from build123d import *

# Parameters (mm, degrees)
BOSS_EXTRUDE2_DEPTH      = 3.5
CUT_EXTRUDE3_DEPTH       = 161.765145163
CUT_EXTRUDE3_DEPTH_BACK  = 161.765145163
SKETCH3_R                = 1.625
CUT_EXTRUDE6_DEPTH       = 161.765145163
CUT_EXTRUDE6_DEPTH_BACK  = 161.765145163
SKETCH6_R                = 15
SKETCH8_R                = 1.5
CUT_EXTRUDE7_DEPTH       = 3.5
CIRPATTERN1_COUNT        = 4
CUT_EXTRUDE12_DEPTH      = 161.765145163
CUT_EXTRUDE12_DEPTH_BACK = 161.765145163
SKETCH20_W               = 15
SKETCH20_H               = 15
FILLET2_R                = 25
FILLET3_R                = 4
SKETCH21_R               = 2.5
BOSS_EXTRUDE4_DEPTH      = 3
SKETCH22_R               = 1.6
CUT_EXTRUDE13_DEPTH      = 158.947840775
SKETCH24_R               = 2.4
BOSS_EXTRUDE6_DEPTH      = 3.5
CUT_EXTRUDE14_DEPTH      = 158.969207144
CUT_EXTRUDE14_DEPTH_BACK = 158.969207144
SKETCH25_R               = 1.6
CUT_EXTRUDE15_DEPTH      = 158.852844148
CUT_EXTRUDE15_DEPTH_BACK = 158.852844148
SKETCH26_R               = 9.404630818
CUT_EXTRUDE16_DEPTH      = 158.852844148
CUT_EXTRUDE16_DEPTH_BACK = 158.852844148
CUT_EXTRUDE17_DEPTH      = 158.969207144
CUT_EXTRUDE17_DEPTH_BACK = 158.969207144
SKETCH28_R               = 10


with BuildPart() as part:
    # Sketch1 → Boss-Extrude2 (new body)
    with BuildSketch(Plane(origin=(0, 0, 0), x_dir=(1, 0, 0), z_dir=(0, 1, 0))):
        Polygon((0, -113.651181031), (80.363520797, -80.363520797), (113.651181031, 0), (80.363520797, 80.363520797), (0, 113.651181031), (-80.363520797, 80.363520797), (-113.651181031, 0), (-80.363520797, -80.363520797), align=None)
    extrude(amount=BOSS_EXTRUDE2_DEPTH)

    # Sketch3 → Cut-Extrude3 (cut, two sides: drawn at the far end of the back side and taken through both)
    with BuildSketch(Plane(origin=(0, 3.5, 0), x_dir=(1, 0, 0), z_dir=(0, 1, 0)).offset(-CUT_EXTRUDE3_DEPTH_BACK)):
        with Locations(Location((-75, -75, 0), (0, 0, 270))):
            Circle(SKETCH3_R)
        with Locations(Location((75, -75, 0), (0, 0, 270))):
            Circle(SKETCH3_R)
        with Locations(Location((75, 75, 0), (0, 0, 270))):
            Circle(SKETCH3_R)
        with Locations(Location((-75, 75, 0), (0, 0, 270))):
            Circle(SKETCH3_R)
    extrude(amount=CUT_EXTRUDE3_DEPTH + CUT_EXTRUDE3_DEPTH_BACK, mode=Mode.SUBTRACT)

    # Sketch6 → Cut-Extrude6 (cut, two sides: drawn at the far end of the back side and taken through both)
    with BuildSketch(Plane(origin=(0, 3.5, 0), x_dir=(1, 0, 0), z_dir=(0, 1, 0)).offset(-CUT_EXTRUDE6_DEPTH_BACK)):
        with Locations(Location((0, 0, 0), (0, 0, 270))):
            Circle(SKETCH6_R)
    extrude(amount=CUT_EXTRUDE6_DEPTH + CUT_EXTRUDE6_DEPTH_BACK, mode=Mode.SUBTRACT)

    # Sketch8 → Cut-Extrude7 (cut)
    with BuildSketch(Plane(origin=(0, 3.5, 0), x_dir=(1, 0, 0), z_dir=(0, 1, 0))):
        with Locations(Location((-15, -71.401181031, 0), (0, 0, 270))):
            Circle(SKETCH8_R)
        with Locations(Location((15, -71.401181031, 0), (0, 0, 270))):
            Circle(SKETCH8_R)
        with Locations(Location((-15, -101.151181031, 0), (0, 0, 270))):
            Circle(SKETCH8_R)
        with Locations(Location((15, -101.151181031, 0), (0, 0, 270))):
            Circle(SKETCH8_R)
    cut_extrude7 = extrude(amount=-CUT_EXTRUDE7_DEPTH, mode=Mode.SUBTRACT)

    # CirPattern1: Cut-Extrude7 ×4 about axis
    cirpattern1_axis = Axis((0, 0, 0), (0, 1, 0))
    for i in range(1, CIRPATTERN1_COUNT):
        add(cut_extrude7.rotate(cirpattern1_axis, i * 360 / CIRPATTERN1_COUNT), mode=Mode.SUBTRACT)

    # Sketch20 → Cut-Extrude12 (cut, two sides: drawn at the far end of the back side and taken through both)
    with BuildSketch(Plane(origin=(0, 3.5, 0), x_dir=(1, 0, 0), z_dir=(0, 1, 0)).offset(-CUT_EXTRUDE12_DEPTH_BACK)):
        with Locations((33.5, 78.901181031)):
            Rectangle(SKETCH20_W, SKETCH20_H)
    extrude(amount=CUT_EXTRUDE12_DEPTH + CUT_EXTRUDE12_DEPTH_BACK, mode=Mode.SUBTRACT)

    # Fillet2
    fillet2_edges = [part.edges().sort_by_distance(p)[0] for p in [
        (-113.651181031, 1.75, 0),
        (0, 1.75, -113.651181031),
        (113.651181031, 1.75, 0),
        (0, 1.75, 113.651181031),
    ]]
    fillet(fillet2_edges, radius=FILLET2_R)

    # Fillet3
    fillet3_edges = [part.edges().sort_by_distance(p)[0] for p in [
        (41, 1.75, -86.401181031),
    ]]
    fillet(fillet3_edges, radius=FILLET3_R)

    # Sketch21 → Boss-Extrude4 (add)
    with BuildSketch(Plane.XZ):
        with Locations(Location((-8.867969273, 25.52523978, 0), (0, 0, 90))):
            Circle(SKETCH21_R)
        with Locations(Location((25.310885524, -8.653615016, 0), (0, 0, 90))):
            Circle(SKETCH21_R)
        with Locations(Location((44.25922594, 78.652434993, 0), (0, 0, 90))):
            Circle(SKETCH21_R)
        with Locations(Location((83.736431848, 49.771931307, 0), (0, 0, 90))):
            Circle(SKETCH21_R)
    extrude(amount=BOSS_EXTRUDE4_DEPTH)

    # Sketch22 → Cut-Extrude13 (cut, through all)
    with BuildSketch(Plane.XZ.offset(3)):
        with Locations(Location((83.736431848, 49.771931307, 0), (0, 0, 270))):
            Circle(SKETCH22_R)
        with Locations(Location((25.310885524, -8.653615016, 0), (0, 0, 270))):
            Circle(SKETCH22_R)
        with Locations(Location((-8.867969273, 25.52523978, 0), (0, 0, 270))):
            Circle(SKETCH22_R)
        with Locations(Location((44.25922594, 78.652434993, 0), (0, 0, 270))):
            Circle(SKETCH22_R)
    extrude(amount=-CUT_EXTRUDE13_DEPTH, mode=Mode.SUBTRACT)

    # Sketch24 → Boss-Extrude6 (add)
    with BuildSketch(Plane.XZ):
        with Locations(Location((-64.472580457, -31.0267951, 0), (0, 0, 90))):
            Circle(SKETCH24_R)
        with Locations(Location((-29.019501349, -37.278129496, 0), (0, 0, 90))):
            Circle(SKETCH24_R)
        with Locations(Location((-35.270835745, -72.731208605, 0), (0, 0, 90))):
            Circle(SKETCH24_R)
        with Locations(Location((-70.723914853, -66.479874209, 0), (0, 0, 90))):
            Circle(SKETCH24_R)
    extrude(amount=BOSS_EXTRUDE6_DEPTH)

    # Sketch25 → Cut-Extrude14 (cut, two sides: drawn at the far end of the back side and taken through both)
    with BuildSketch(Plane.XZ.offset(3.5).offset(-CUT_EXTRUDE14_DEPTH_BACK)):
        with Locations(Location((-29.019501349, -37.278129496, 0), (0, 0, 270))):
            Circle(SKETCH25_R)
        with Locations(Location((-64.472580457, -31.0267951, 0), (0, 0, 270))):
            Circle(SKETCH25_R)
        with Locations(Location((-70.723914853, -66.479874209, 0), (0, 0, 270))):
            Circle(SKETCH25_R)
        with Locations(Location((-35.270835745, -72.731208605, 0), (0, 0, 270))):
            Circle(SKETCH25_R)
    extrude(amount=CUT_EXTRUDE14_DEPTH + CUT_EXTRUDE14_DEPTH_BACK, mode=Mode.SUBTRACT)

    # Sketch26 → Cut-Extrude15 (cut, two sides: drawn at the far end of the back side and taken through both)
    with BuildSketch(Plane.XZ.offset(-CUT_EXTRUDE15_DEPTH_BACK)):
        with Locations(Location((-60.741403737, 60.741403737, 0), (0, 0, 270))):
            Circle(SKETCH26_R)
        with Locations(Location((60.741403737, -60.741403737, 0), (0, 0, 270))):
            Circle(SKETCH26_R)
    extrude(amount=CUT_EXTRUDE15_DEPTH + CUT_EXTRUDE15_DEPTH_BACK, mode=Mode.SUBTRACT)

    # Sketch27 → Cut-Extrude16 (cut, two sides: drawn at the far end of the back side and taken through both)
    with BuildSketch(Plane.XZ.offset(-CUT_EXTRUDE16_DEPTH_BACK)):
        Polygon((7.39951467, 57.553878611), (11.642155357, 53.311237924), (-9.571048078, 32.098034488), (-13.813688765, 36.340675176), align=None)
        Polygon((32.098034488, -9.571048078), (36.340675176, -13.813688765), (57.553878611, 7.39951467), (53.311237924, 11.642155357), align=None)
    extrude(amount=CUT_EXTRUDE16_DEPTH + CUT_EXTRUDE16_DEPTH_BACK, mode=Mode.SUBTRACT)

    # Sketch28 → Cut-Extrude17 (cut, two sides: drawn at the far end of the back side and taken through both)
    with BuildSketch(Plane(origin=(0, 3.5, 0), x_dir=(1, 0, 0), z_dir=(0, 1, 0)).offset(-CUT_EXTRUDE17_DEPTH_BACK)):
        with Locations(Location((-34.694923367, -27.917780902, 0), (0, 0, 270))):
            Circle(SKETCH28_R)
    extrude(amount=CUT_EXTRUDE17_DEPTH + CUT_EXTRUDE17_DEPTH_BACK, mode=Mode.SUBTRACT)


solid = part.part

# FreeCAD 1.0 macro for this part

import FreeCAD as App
import Part
import Sketcher
Q = App.Units.Quantity


def edges_at(feature, points):
    """Names of the edges that pass closest to the given points."""
    edges = feature.Shape.Edges
    near = lambda p: min(range(len(edges)), key=lambda i: edges[i].distToShape(Part.Vertex(*p))[0])
    return sorted({f"Edge{near(p) + 1}" for p in points})

doc = App.newDocument("Part")
body = doc.addObject("PartDesign::Body", "Body")

sketch1 = body.newObject("Sketcher::SketchObject", "Sketch")
sketch1.AttachmentSupport = (doc.getObject("XZ_Plane"), [""])
sketch1.MapMode = "FlatFace"
sketch1.addGeometry([
    Part.LineSegment(App.Vector(0, 113.651181, 0), App.Vector(80.363521, 80.363521, 0)),
    Part.LineSegment(App.Vector(80.363521, 80.363521, 0), App.Vector(113.651181, 0, 0)),
    Part.LineSegment(App.Vector(113.651181, 0, 0), App.Vector(80.363521, -80.363521, 0)),
    Part.LineSegment(App.Vector(80.363521, -80.363521, 0), App.Vector(0, -113.651181, 0)),
    Part.LineSegment(App.Vector(0, -113.651181, 0), App.Vector(-80.363521, -80.363521, 0)),
    Part.LineSegment(App.Vector(-80.363521, -80.363521, 0), App.Vector(-113.651181, 0, 0)),
    Part.LineSegment(App.Vector(-113.651181, 0, 0), App.Vector(-80.363521, 80.363521, 0)),
    Part.LineSegment(App.Vector(-80.363521, 80.363521, 0), App.Vector(0, 113.651181, 0)),
], False)
sketch1.addConstraint([
    Sketcher.Constraint("Coincident", 0, 2, 1, 1),
    Sketcher.Constraint("Coincident", 1, 2, 2, 1),
    Sketcher.Constraint("Coincident", 2, 2, 3, 1),
    Sketcher.Constraint("Coincident", 3, 2, 4, 1),
    Sketcher.Constraint("Coincident", 4, 2, 5, 1),
    Sketcher.Constraint("Coincident", 5, 2, 6, 1),
    Sketcher.Constraint("Coincident", 6, 2, 7, 1),
    Sketcher.Constraint("Coincident", 7, 2, 0, 1),
    Sketcher.Constraint("Symmetric", 0, 2, 4, 2, -1, 1),
    Sketcher.Constraint("Symmetric", 1, 2, 5, 2, -1, 1),
    Sketcher.Constraint("Symmetric", 2, 2, 6, 2, -1, 1),
    Sketcher.Constraint("Symmetric", 3, 2, 7, 2, -1, 1),
    Sketcher.Constraint("Symmetric", 2, 2, 4, 2, -2),
    Sketcher.Constraint("PointOnObject", 1, 2, -1),
    Sketcher.Constraint("PointOnObject", 3, 2, -2),
    Sketcher.Constraint("Perpendicular", 0, 2),
    Sketcher.Constraint("Equal", 0, 1),
    Sketcher.Constraint("Angle", 0, Q("-22.5 deg")),
    Sketcher.Constraint("DistanceY", 3, 2, 0, 2, Q("194.014702 mm")),
])
pad1 = body.newObject("PartDesign::Pad", "Pad")
pad1.Profile = sketch1
pad1.Length = 3.5
pad1.Reversed = True

sketch2 = body.newObject("Sketcher::SketchObject", "Sketch001")
sketch2.AttachmentSupport = (doc.getObject("XZ_Plane"), [""])
sketch2.MapMode = "FlatFace"
sketch2.AttachmentOffset = App.Placement(App.Vector(0, 0, -3.5), App.Rotation())
sketch2.addGeometry([
    Part.Circle(App.Vector(-75, 75, 0), App.Vector(0, 0, 1), 1.625),
    Part.Circle(App.Vector(75, 75, 0), App.Vector(0, 0, 1), 1.625),
    Part.Circle(App.Vector(75, -75, 0), App.Vector(0, 0, 1), 1.625),
    Part.Circle(App.Vector(-75, -75, 0), App.Vector(0, 0, 1), 1.625),
], False)
sketch2.addConstraint([
    Sketcher.Constraint("Equal", 0, 1),
    Sketcher.Constraint("Equal", 1, 2),
    Sketcher.Constraint("Equal", 2, 3),
    Sketcher.Constraint("Symmetric", 0, 3, 2, 3, -1, 1),
    Sketcher.Constraint("Symmetric", 1, 3, 3, 3, -1, 1),
    Sketcher.Constraint("Symmetric", 0, 3, 1, 3, -2),
    Sketcher.Constraint("Diameter", 0, Q("3.25 mm")),
    Sketcher.Constraint("DistanceX", 0, 3, -1, 1, Q("75 mm")),
    Sketcher.Constraint("DistanceY", -1, 1, 0, 3, Q("75 mm")),
])
pocket1 = body.newObject("PartDesign::Pocket", "Pocket")
pocket1.Profile = sketch2
pocket1.Type = "ThroughAll"
pocket1.Midplane = True

sketch3 = body.newObject("Sketcher::SketchObject", "Sketch002")
sketch3.AttachmentSupport = (doc.getObject("XZ_Plane"), [""])
sketch3.MapMode = "FlatFace"
sketch3.AttachmentOffset = App.Placement(App.Vector(0, 0, -3.5), App.Rotation())
sketch3.addGeometry(Part.Circle(App.Vector(0, 0, 0), App.Vector(0, 0, 1), 15), False)
sketch3.addConstraint([
    Sketcher.Constraint("Coincident", 0, 3, -1, 1),
    Sketcher.Constraint("Diameter", 0, Q("30 mm")),
])
pocket2 = body.newObject("PartDesign::Pocket", "Pocket001")
pocket2.Profile = sketch3
pocket2.Type = "ThroughAll"
pocket2.Midplane = True

sketch4 = body.newObject("Sketcher::SketchObject", "Sketch003")
sketch4.AttachmentSupport = (doc.getObject("XZ_Plane"), [""])
sketch4.MapMode = "FlatFace"
sketch4.AttachmentOffset = App.Placement(App.Vector(0, 0, -3.5), App.Rotation())
sketch4.addGeometry([
    Part.Circle(App.Vector(-15, 71.401181, 0), App.Vector(0, 0, 1), 1.5),
    Part.Circle(App.Vector(15, 71.401181, 0), App.Vector(0, 0, 1), 1.5),
    Part.Circle(App.Vector(-15, 101.151181, 0), App.Vector(0, 0, 1), 1.5),
    Part.Circle(App.Vector(15, 101.151181, 0), App.Vector(0, 0, 1), 1.5),
], False)
sketch4.addConstraint([
    Sketcher.Constraint("Equal", 0, 1),
    Sketcher.Constraint("Equal", 1, 2),
    Sketcher.Constraint("Equal", 2, 3),
    Sketcher.Constraint("Symmetric", 0, 3, 1, 3, -2),
    Sketcher.Constraint("Symmetric", 2, 3, 3, 3, -2),
    Sketcher.Constraint("Vertical", 0, 3, 2, 3),
    Sketcher.Constraint("Diameter", 0, Q("3 mm")),
    Sketcher.Constraint("DistanceX", 0, 3, -1, 1, Q("15 mm")),
    Sketcher.Constraint("DistanceY", 0, 3, 2, 3, Q("29.75 mm")),
    Sketcher.Constraint("DistanceY", -1, 1, 0, 3, Q("71.401181 mm")),
])
pocket3 = body.newObject("PartDesign::Pocket", "Pocket002")
pocket3.Profile = sketch4
pocket3.Length = 3.5
pocket3.Reversed = True
doc.recompute()

polarpattern = body.newObject("PartDesign::PolarPattern", "PolarPattern")
polarpattern.Originals = [pocket3]
polarpattern.Axis = (doc.getObject("Y_Axis"), [""])
polarpattern.Angle = 360
polarpattern.Occurrences = 4
body.Tip = polarpattern

sketch5 = body.newObject("Sketcher::SketchObject", "Sketch004")
sketch5.AttachmentSupport = (doc.getObject("XZ_Plane"), [""])
sketch5.MapMode = "FlatFace"
sketch5.AttachmentOffset = App.Placement(App.Vector(0, 0, -3.5), App.Rotation())
sketch5.addGeometry([
    Part.LineSegment(App.Vector(26, -86.401181, 0), App.Vector(26, -71.401181, 0)),
    Part.LineSegment(App.Vector(26, -71.401181, 0), App.Vector(41, -71.401181, 0)),
    Part.LineSegment(App.Vector(41, -71.401181, 0), App.Vector(41, -86.401181, 0)),
    Part.LineSegment(App.Vector(41, -86.401181, 0), App.Vector(26, -86.401181, 0)),
], False)
sketch5.addConstraint([
    Sketcher.Constraint("Coincident", 0, 2, 1, 1),
    Sketcher.Constraint("Coincident", 1, 2, 2, 1),
    Sketcher.Constraint("Coincident", 2, 2, 3, 1),
    Sketcher.Constraint("Coincident", 3, 2, 0, 1),
    Sketcher.Constraint("Vertical", 0),
    Sketcher.Constraint("Horizontal", 1),
    Sketcher.Constraint("Vertical", 2),
    Sketcher.Constraint("Horizontal", 3),
    Sketcher.Constraint("Equal", 3, 0),
    Sketcher.Constraint("DistanceX", 1, 1, 1, 2, Q("15 mm")),
    Sketcher.Constraint("DistanceX", -1, 1, 0, 2, Q("26 mm")),
    Sketcher.Constraint("DistanceY", 0, 2, -1, 1, Q("71.401181 mm")),
])
pocket4 = body.newObject("PartDesign::Pocket", "Pocket003")
pocket4.Profile = sketch5
pocket4.Type = "ThroughAll"
pocket4.Midplane = True
doc.recompute()

fillet = body.newObject("PartDesign::Fillet", "Fillet")
fillet.Base = (pocket4, edges_at(pocket4, [
    (-113.651, 1.75, 0),
    (0, 1.75, -113.651),
    (113.651, 1.75, 0),
    (0, 1.75, 113.651),
]))
fillet.Radius = 25
doc.recompute()

fillet2 = body.newObject("PartDesign::Fillet", "Fillet001")
fillet2.Base = (fillet, edges_at(fillet, [(41, 1.75, -86.401)]))
fillet2.Radius = 4

sketch6 = body.newObject("Sketcher::SketchObject", "Sketch005")
sketch6.AttachmentSupport = (doc.getObject("XZ_Plane"), [""])
sketch6.MapMode = "FlatFace"
sketch6.addGeometry([
    Part.Circle(App.Vector(-8.867969, 25.52524, 0), App.Vector(0, 0, 1), 2.5),
    Part.Circle(App.Vector(25.310886, -8.653615, 0), App.Vector(0, 0, 1), 2.5),
    Part.Circle(App.Vector(44.259226, 78.652435, 0), App.Vector(0, 0, 1), 2.5),
    Part.Circle(App.Vector(83.736432, 49.771931, 0), App.Vector(0, 0, 1), 2.5),
], False)
sketch6.addConstraint([
    Sketcher.Constraint("Equal", 0, 1),
    Sketcher.Constraint("Equal", 1, 2),
    Sketcher.Constraint("Equal", 2, 3),
    Sketcher.Constraint("Diameter", 0, Q("5 mm")),
    Sketcher.Constraint("DistanceX", 0, 3, 3, 3, Q("92.604401 mm")),
    Sketcher.Constraint("DistanceX", 0, 3, -1, 1, Q("8.867969 mm")),
    Sketcher.Constraint("DistanceY", -1, 1, 0, 3, Q("25.52524 mm")),
    Sketcher.Constraint("DistanceY", -1, 1, 3, 3, Q("49.771931 mm")),
    Sketcher.Constraint("DistanceX", 1, 3, 2, 3, Q("18.94834 mm")),
    Sketcher.Constraint("DistanceY", 1, 3, 2, 3, Q("87.30605 mm")),
    Sketcher.Constraint("DistanceX", -1, 1, 1, 3, Q("25.310886 mm")),
    Sketcher.Constraint("DistanceY", 1, 3, -1, 1, Q("8.653615 mm")),
])
pad2 = body.newObject("PartDesign::Pad", "Pad001")
pad2.Profile = sketch6
pad2.Length = 3

sketch7 = body.newObject("Sketcher::SketchObject", "Sketch006")
sketch7.AttachmentSupport = (doc.getObject("XZ_Plane"), [""])
sketch7.MapMode = "FlatFace"
sketch7.AttachmentOffset = App.Placement(App.Vector(0, 0, 3), App.Rotation())
sketch7.addGeometry([
    Part.Circle(App.Vector(83.736432, 49.771931, 0), App.Vector(0, 0, 1), 1.6),
    Part.Circle(App.Vector(25.310886, -8.653615, 0), App.Vector(0, 0, 1), 1.6),
    Part.Circle(App.Vector(-8.867969, 25.52524, 0), App.Vector(0, 0, 1), 1.6),
    Part.Circle(App.Vector(44.259226, 78.652435, 0), App.Vector(0, 0, 1), 1.6),
], False)
sketch7.addConstraint([
    Sketcher.Constraint("Equal", 0, 1),
    Sketcher.Constraint("Equal", 1, 2),
    Sketcher.Constraint("Equal", 2, 3),
    Sketcher.Constraint("Diameter", 0, Q("3.2 mm")),
    Sketcher.Constraint("DistanceX", 2, 3, 0, 3, Q("92.604401 mm")),
    Sketcher.Constraint("DistanceX", -1, 1, 0, 3, Q("83.736432 mm")),
    Sketcher.Constraint("DistanceY", -1, 1, 0, 3, Q("49.771931 mm")),
    Sketcher.Constraint("DistanceY", -1, 1, 2, 3, Q("25.52524 mm")),
    Sketcher.Constraint("DistanceX", 1, 3, 3, 3, Q("18.94834 mm")),
    Sketcher.Constraint("DistanceY", 1, 3, 3, 3, Q("87.30605 mm")),
    Sketcher.Constraint("DistanceX", -1, 1, 1, 3, Q("25.310886 mm")),
    Sketcher.Constraint("DistanceY", 1, 3, -1, 1, Q("8.653615 mm")),
])
pocket5 = body.newObject("PartDesign::Pocket", "Pocket004")
pocket5.Profile = sketch7
pocket5.Type = "ThroughAll"

sketch8 = body.newObject("Sketcher::SketchObject", "Sketch007")
sketch8.AttachmentSupport = (doc.getObject("XZ_Plane"), [""])
sketch8.MapMode = "FlatFace"
sketch8.addGeometry([
    Part.Circle(App.Vector(-64.47258, -31.026795, 0), App.Vector(0, 0, 1), 2.4),
    Part.Circle(App.Vector(-29.019501, -37.278129, 0), App.Vector(0, 0, 1), 2.4),
    Part.Circle(App.Vector(-35.270836, -72.731209, 0), App.Vector(0, 0, 1), 2.4),
    Part.Circle(App.Vector(-70.723915, -66.479874, 0), App.Vector(0, 0, 1), 2.4),
], False)
sketch8.addConstraint([
    Sketcher.Constraint("Equal", 0, 1),
    Sketcher.Constraint("Equal", 1, 2),
    Sketcher.Constraint("Equal", 2, 3),
    Sketcher.Constraint("Diameter", 0, Q("4.8 mm")),
    Sketcher.Constraint("DistanceX", 1, 3, -1, 1, Q("29.019501 mm")),
    Sketcher.Constraint("DistanceX", 0, 3, -1, 1, Q("64.47258 mm")),
    Sketcher.Constraint("DistanceY", 1, 3, -1, 1, Q("37.278129 mm")),
    Sketcher.Constraint("DistanceY", 2, 3, -1, 1, Q("72.731209 mm")),
    Sketcher.Constraint("DistanceX", 3, 3, 2, 3, Q("35.453079 mm")),
    Sketcher.Constraint("DistanceY", 3, 3, 0, 3, Q("35.453079 mm")),
    Sketcher.Constraint("DistanceY", 0, 3, -1, 1, Q("31.026795 mm")),
    Sketcher.Constraint("DistanceX", 2, 3, -1, 1, Q("35.270836 mm")),
])
pad3 = body.newObject("PartDesign::Pad", "Pad002")
pad3.Profile = sketch8
pad3.Length = 3.5

sketch9 = body.newObject("Sketcher::SketchObject", "Sketch008")
sketch9.AttachmentSupport = (doc.getObject("XZ_Plane"), [""])
sketch9.MapMode = "FlatFace"
sketch9.AttachmentOffset = App.Placement(App.Vector(0, 0, 3.5), App.Rotation())
sketch9.addGeometry([
    Part.Circle(App.Vector(-29.019501, -37.278129, 0), App.Vector(0, 0, 1), 1.6),
    Part.Circle(App.Vector(-64.47258, -31.026795, 0), App.Vector(0, 0, 1), 1.6),
    Part.Circle(App.Vector(-70.723915, -66.479874, 0), App.Vector(0, 0, 1), 1.6),
    Part.Circle(App.Vector(-35.270836, -72.731209, 0), App.Vector(0, 0, 1), 1.6),
], False)
sketch9.addConstraint([
    Sketcher.Constraint("Equal", 0, 1),
    Sketcher.Constraint("Equal", 1, 2),
    Sketcher.Constraint("Equal", 2, 3),
    Sketcher.Constraint("Diameter", 0, Q("3.2 mm")),
    Sketcher.Constraint("DistanceX", 0, 3, -1, 1, Q("29.019501 mm")),
    Sketcher.Constraint("DistanceY", 0, 3, -1, 1, Q("37.278129 mm")),
    Sketcher.Constraint("DistanceX", 1, 3, -1, 1, Q("64.47258 mm")),
    Sketcher.Constraint("DistanceY", 3, 3, -1, 1, Q("72.731209 mm")),
    Sketcher.Constraint("DistanceY", 2, 3, 1, 3, Q("35.453079 mm")),
    Sketcher.Constraint("DistanceX", 2, 3, 3, 3, Q("35.453079 mm")),
    Sketcher.Constraint("DistanceY", 1, 3, -1, 1, Q("31.026795 mm")),
    Sketcher.Constraint("DistanceX", 2, 3, -1, 1, Q("70.723915 mm")),
])
pocket6 = body.newObject("PartDesign::Pocket", "Pocket005")
pocket6.Profile = sketch9
pocket6.Type = "ThroughAll"
pocket6.Midplane = True

sketch10 = body.newObject("Sketcher::SketchObject", "Sketch009")
sketch10.AttachmentSupport = (doc.getObject("XZ_Plane"), [""])
sketch10.MapMode = "FlatFace"
sketch10.addGeometry([
    Part.Circle(App.Vector(-60.741404, 60.741404, 0), App.Vector(0, 0, 1), 9.404631),
    Part.Circle(App.Vector(60.741404, -60.741404, 0), App.Vector(0, 0, 1), 9.404631),
], False)
sketch10.addConstraint([
    Sketcher.Constraint("Equal", 0, 1),
    Sketcher.Constraint("Symmetric", 0, 3, 1, 3, -1, 1),
    Sketcher.Constraint("Diameter", 0, Q("18.809262 mm")),
    Sketcher.Constraint("DistanceX", 0, 3, -1, 1, Q("60.741404 mm")),
    Sketcher.Constraint("DistanceY", -1, 1, 0, 3, Q("60.741404 mm")),
])
pocket7 = body.newObject("PartDesign::Pocket", "Pocket006")
pocket7.Profile = sketch10
pocket7.Type = "ThroughAll"
pocket7.Midplane = True

sketch11 = body.newObject("Sketcher::SketchObject", "Sketch010")
sketch11.AttachmentSupport = (doc.getObject("XZ_Plane"), [""])
sketch11.MapMode = "FlatFace"
sketch11.addGeometry([
    Part.LineSegment(App.Vector(11.642155, 53.311238, 0), App.Vector(7.399515, 57.553879, 0)),
    Part.LineSegment(App.Vector(7.399515, 57.553879, 0), App.Vector(-13.813689, 36.340675, 0)),
    Part.LineSegment(App.Vector(-13.813689, 36.340675, 0), App.Vector(-9.571048, 32.098034, 0)),
    Part.LineSegment(App.Vector(-9.571048, 32.098034, 0), App.Vector(11.642155, 53.311238, 0)),
    Part.LineSegment(App.Vector(32.098034, -9.571048, 0), App.Vector(36.340675, -13.813689, 0)),
    Part.LineSegment(App.Vector(36.340675, -13.813689, 0), App.Vector(57.553879, 7.399515, 0)),
    Part.LineSegment(App.Vector(57.553879, 7.399515, 0), App.Vector(53.311238, 11.642155, 0)),
    Part.LineSegment(App.Vector(53.311238, 11.642155, 0), App.Vector(32.098034, -9.571048, 0)),
], False)
sketch11.addConstraint([
    Sketcher.Constraint("Coincident", 0, 2, 1, 1),
    Sketcher.Constraint("Coincident", 1, 2, 2, 1),
    Sketcher.Constraint("Coincident", 2, 2, 3, 1),
    Sketcher.Constraint("Coincident", 3, 2, 0, 1),
    Sketcher.Constraint("Coincident", 4, 2, 5, 1),
    Sketcher.Constraint("Coincident", 5, 2, 6, 1),
    Sketcher.Constraint("Coincident", 6, 2, 7, 1),
    Sketcher.Constraint("Coincident", 7, 2, 4, 1),
    Sketcher.Constraint("Perpendicular", 0, 1),
    Sketcher.Constraint("Perpendicular", 1, 2),
    Sketcher.Constraint("Perpendicular", 2, 3),
    Sketcher.Constraint("Perpendicular", 3, 4),
    Sketcher.Constraint("Perpendicular", 4, 5),
    Sketcher.Constraint("Perpendicular", 5, 6),
    Sketcher.Constraint("Perpendicular", 6, 7),
    Sketcher.Constraint("Equal", 2, 4),
    Sketcher.Constraint("Equal", 3, 5),
    Sketcher.Constraint("Angle", 0, Q("135 deg")),
    Sketcher.Constraint("Distance", 0, Q("6 mm")),
    Sketcher.Constraint("Distance", 1, Q("30 mm")),
    Sketcher.Constraint("DistanceY", -1, 1, 0, 2, Q("57.553879 mm")),
    Sketcher.Constraint("DistanceX", 1, 2, -1, 1, Q("13.813689 mm")),
    Sketcher.Constraint("DistanceY", 4, 2, -1, 1, Q("13.813689 mm")),
    Sketcher.Constraint("DistanceX", -1, 1, 5, 2, Q("57.553879 mm")),
])
pocket8 = body.newObject("PartDesign::Pocket", "Pocket007")
pocket8.Profile = sketch11
pocket8.Type = "ThroughAll"
pocket8.Midplane = True

sketch12 = body.newObject("Sketcher::SketchObject", "Sketch011")
sketch12.AttachmentSupport = (doc.getObject("XZ_Plane"), [""])
sketch12.MapMode = "FlatFace"
sketch12.AttachmentOffset = App.Placement(App.Vector(0, 0, -3.5), App.Rotation())
sketch12.addGeometry(Part.Circle(App.Vector(-34.694923, 27.917781, 0), App.Vector(0, 0, 1), 10), False)
sketch12.addConstraint([
    Sketcher.Constraint("Diameter", 0, Q("20 mm")),
    Sketcher.Constraint("DistanceY", -1, 1, 0, 3, Q("27.917781 mm")),
    Sketcher.Constraint("DistanceX", 0, 3, -1, 1, Q("34.694923 mm")),
])
pocket9 = body.newObject("PartDesign::Pocket", "Pocket008")
pocket9.Profile = sketch12
pocket9.Type = "ThroughAll"
pocket9.Midplane = True

doc.recompute()
